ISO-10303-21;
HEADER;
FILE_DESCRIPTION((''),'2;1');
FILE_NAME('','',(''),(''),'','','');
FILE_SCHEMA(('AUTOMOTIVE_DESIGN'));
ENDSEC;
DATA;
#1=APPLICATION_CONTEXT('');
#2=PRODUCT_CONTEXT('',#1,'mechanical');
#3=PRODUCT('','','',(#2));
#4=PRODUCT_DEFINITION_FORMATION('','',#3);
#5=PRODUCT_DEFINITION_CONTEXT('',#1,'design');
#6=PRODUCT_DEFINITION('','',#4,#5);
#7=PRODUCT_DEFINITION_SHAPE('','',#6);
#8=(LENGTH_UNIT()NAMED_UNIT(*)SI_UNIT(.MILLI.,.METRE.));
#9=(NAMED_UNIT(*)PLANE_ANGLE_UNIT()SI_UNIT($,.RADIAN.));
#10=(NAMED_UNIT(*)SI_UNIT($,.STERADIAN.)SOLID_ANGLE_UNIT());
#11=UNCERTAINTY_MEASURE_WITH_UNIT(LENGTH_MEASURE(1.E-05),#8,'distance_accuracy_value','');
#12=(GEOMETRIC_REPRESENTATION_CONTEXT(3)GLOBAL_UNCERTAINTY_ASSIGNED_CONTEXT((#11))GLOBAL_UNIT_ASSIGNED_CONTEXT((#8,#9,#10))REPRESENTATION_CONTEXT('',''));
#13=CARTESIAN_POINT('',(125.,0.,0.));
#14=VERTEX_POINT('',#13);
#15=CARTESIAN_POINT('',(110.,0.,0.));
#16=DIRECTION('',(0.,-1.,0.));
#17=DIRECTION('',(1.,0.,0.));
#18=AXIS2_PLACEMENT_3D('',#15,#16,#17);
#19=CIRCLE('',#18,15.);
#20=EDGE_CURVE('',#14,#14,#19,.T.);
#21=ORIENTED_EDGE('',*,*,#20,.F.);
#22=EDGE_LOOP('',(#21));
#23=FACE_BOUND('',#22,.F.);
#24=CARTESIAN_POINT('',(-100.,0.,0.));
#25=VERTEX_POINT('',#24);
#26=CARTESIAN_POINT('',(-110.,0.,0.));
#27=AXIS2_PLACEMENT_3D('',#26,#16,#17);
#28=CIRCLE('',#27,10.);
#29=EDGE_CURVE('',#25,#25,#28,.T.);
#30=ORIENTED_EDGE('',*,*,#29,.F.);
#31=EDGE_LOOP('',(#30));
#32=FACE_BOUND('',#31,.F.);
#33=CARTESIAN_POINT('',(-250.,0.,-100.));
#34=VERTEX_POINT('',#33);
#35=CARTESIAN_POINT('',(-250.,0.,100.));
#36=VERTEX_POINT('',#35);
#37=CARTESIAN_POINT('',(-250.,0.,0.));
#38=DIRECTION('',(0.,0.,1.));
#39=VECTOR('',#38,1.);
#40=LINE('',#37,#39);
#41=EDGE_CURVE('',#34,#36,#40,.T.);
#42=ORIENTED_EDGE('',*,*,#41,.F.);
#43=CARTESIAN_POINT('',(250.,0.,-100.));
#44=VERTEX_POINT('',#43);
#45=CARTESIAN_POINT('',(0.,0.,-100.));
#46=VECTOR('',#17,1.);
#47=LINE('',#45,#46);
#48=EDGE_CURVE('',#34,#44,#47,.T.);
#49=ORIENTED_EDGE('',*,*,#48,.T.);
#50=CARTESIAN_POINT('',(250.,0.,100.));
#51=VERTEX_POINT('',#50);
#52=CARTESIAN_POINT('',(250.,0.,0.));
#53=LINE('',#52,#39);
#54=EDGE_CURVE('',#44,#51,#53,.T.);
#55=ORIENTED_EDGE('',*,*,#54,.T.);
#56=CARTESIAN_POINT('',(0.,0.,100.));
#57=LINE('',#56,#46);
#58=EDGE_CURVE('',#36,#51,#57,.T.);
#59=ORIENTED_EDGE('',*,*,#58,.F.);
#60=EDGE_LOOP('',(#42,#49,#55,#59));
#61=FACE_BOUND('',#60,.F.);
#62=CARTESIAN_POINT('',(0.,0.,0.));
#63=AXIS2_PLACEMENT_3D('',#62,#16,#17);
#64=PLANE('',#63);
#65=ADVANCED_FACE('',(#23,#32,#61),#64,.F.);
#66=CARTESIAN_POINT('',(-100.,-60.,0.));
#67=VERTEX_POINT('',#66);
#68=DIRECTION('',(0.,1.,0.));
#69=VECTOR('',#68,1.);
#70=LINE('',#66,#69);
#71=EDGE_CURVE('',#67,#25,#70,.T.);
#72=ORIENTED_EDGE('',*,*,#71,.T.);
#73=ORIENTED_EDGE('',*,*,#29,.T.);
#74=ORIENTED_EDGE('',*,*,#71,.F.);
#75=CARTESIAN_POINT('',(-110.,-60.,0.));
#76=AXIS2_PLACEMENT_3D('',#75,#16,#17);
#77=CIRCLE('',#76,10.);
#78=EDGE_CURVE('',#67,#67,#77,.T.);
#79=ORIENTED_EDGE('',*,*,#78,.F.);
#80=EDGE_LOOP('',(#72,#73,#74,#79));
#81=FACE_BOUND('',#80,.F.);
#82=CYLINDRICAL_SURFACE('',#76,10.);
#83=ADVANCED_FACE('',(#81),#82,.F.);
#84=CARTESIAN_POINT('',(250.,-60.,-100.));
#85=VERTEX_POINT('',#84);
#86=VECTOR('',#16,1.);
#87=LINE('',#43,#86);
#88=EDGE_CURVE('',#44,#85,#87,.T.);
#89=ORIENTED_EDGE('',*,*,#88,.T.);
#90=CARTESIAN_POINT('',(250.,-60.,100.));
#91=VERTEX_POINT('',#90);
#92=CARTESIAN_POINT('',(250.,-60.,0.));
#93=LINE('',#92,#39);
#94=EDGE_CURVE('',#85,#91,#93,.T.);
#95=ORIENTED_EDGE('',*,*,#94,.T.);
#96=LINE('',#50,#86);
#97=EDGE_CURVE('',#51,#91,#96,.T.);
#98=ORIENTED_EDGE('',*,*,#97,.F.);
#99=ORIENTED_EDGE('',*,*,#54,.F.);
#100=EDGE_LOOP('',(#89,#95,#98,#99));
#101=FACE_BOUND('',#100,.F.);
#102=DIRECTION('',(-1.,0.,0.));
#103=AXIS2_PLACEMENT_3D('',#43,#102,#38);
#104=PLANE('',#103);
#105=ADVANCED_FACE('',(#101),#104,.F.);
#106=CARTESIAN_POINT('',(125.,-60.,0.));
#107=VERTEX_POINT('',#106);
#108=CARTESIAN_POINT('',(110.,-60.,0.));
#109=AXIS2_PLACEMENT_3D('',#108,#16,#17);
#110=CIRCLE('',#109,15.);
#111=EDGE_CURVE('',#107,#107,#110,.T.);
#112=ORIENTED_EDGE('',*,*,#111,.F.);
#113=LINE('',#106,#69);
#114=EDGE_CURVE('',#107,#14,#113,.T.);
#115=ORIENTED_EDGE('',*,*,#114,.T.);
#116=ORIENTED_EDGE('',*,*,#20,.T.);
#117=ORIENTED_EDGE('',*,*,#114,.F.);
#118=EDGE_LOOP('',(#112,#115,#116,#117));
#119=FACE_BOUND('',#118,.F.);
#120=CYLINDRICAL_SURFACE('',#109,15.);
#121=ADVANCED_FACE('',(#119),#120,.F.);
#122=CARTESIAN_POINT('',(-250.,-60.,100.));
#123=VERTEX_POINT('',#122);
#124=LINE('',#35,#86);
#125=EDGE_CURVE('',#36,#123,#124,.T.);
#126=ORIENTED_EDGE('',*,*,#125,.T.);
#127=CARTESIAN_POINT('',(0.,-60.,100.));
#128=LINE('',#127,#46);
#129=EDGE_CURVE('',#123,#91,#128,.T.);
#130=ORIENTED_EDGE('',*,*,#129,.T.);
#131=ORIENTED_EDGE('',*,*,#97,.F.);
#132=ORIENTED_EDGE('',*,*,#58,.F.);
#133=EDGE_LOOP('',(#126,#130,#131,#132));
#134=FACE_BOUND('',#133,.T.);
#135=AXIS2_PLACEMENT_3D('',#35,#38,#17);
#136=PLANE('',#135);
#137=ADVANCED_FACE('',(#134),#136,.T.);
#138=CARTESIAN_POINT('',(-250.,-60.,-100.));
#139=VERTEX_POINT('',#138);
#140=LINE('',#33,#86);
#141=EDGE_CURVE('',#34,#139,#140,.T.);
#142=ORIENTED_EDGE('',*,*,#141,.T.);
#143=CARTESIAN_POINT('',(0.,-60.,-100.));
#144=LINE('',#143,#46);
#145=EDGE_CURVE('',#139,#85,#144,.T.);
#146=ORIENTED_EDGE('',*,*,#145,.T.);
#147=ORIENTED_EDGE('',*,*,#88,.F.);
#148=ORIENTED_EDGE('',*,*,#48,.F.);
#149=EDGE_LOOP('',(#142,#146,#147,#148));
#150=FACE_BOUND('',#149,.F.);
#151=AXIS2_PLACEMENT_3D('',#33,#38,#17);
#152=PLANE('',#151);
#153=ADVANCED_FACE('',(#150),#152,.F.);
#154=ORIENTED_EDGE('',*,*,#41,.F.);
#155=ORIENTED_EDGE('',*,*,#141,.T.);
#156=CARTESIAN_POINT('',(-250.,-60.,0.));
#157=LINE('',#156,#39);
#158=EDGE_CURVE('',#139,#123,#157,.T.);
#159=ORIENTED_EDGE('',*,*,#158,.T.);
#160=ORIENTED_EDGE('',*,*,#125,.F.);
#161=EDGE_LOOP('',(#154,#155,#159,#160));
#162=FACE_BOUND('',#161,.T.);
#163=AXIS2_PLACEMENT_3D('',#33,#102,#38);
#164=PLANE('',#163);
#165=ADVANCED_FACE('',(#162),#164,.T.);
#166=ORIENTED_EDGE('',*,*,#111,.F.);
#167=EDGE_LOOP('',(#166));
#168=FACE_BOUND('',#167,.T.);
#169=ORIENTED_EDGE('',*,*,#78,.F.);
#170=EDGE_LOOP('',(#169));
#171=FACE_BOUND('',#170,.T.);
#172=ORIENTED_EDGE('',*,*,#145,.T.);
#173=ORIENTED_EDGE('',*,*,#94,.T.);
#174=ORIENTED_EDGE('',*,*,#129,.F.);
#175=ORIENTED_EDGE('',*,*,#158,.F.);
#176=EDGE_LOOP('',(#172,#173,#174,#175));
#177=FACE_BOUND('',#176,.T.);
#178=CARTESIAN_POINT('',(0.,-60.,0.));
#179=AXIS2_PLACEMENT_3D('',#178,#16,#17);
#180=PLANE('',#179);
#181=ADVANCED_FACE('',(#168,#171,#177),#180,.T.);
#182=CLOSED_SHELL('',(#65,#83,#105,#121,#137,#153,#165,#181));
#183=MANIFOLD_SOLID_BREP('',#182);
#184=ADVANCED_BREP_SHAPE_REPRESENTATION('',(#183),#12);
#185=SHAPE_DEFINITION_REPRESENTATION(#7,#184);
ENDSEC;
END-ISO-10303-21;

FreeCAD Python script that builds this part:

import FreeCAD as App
import Part
import Sketcher

V = App.Vector


def add_polygon(sketch, points):
    """Adds a closed chain of lines whose ends are joined by coincident constraints."""
    first, n = sketch.GeometryCount, len(points)
    for a, b in zip(points, points[1:] + points[:1]):
        sketch.addGeometry(Part.LineSegment(App.Vector(*a, 0), App.Vector(*b, 0)), False)
    for i in range(n):
        sketch.addConstraint(Sketcher.Constraint("Coincident", first + i, 2, first + (i + 1) % n, 1))

doc = App.newDocument("Part")
params = doc.addObject("Spreadsheet::Sheet", "Params")
for row, (alias, value) in enumerate([
    ("sketch1_width", "500 mm"),
    ("sketch1_height", "200 mm"),
    ("pad1_length", "60 mm"),
    ("sketch2_diameter", "30 mm"),
    ("sketch2_diameter2", "20 mm"),
], start=1):
    params.set(f"A{row}", alias)
    params.set(f"B{row}", "=" + value)
    params.setAlias(f"B{row}", alias)

body = doc.addObject("PartDesign::Body", "Body")

# Sketch on XZ plane
sketch1 = doc.addObject("Sketcher::SketchObject", "Sketch")
body.addObject(sketch1)
sketch1.AttachmentSupport = (doc.XZ_Plane, [""])
sketch1.MapMode = "FlatFace"
add_polygon(sketch1, [(-250, 100), (-250, -100), (250, -100), (250, 100)])  # lines 0-3
sketch1.addConstraint([
    Sketcher.Constraint("Vertical", 0),
    Sketcher.Constraint("Horizontal", 1),
    Sketcher.Constraint("Vertical", 2),
    Sketcher.Constraint("Horizontal", 3),
    Sketcher.Constraint("Symmetric", 0, 2, 2, 2, -1, 1),
    Sketcher.Constraint("DistanceX", 1, 1, 1, 2, 500.0),
    Sketcher.Constraint("DistanceY", 0, 2, 0, 1, 200.0),
])
sketch1.setExpression("Constraints[9]", "Params.sketch1_width")
sketch1.setExpression("Constraints[10]", "Params.sketch1_height")
pad1 = doc.addObject("PartDesign::Pad", "Pad")
body.addObject(pad1)
pad1.Profile = sketch1
pad1.setExpression("Length", "Params.pad1_length")

# Sketch on XZ plane
sketch2 = doc.addObject("Sketcher::SketchObject", "Sketch001")
body.addObject(sketch2)
sketch2.AttachmentSupport = (doc.XZ_Plane, [""])
sketch2.MapMode = "FlatFace"
sketch2.AttachmentOffset = App.Placement(V(0, 0, 60), App.Rotation())
sketch2.addGeometry([
    Part.Circle(V(110, 0, 0), V(0, 0, 1), 15),
    Part.Circle(V(-110, 0, 0), V(0, 0, 1), 10),
], False)
sketch2.addConstraint([
    Sketcher.Constraint("Symmetric", 0, 3, 1, 3, -1, 1),
    Sketcher.Constraint("PointOnObject", 0, 3, -1),
    Sketcher.Constraint("Diameter", 0, 30.0),
    Sketcher.Constraint("Diameter", 1, 20.0),
    Sketcher.Constraint("DistanceX", -1, 1, 0, 3, 110.0),
])
sketch2.setExpression("Constraints[2]", "Params.sketch2_diameter")
sketch2.setExpression("Constraints[3]", "Params.sketch2_diameter2")
pocket1 = doc.addObject("PartDesign::Pocket", "Pocket")
body.addObject(pocket1)
pocket1.Profile = sketch2
pocket1.Type = "ThroughAll"

doc.recompute()
